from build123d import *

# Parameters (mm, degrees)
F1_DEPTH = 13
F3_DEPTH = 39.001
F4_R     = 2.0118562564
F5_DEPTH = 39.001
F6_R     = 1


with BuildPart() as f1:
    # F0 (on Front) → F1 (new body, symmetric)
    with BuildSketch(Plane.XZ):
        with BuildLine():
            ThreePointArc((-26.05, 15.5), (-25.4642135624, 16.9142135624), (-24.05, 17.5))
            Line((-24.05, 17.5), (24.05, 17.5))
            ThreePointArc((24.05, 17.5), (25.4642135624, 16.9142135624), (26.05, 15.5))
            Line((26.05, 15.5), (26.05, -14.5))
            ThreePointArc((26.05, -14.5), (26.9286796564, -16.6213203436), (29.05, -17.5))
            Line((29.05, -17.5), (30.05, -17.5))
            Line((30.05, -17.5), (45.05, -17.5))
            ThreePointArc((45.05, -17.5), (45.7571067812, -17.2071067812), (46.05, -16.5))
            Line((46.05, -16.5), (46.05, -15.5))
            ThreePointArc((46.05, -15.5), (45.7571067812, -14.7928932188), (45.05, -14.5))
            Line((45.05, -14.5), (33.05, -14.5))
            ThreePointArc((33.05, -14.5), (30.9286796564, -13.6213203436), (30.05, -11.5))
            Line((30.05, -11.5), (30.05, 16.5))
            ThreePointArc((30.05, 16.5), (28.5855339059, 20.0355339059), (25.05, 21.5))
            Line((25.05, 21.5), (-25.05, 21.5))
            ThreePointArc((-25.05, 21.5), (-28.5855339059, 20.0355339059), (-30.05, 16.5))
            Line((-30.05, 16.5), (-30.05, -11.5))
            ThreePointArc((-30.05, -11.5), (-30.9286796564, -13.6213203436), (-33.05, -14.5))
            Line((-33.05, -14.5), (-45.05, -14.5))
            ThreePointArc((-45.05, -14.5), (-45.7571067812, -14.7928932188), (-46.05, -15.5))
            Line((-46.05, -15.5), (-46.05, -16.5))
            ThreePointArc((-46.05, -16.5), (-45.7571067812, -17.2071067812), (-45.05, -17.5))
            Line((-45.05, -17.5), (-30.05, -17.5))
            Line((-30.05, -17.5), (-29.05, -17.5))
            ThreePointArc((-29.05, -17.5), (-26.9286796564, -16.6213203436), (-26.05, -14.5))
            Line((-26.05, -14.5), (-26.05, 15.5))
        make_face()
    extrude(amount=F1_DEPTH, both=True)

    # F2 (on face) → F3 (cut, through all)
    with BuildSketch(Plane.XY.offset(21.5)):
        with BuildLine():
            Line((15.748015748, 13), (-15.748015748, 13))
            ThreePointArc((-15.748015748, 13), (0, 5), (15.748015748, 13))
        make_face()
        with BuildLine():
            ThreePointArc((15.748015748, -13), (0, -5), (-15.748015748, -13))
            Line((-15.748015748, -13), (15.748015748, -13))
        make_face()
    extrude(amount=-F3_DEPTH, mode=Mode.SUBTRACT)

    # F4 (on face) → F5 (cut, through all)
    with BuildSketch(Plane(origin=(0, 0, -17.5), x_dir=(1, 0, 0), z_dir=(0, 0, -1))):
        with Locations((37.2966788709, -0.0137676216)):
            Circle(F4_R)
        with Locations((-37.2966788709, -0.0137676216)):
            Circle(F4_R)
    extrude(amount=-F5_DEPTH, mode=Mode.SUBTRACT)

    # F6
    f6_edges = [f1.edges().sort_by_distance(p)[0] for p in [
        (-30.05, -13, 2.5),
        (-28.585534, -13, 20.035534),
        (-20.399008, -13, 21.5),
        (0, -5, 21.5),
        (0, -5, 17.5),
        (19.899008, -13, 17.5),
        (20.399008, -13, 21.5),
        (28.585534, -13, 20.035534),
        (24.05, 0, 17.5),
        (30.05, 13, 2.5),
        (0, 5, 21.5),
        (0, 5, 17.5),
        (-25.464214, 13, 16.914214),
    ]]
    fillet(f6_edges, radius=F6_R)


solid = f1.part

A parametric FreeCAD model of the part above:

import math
import FreeCAD as App
import Part
import Sketcher

V = App.Vector


def edges_at(feature, points):
    """Names of the edges that pass closest to the given points."""
    edges = feature.Shape.Edges
    near = lambda p: min(range(len(edges)), key=lambda i: edges[i].distToShape(Part.Vertex(*p))[0])
    return sorted({f"Edge{near(p) + 1}" for p in points})

doc = App.newDocument("Part")
body = doc.addObject("PartDesign::Body", "Body")

# Sketch on XZ plane
sketch1 = doc.addObject("Sketcher::SketchObject", "Sketch")
body.addObject(sketch1)
sketch1.AttachmentSupport = (doc.XZ_Plane, [""])
sketch1.MapMode = "FlatFace"
sketch1.addGeometry(Part.ArcOfCircle(Part.Circle(V(-24.05, 15.5, 0), V(0, 0, 1), 2), math.radians(90), math.radians(180)), False)
sketch1.addGeometry(Part.LineSegment(V(-24.05, 17.5, 0), V(24.05, 17.5, 0)), False)
sketch1.addGeometry(Part.ArcOfCircle(Part.Circle(V(24.05, 15.5, 0), V(0, 0, 1), 2), math.radians(0), math.radians(90)), False)
sketch1.addGeometry(Part.LineSegment(V(26.05, 15.5, 0), V(26.05, -14.5, 0)), False)
sketch1.addGeometry(Part.ArcOfCircle(Part.Circle(V(29.05, -14.5, 0), V(0, 0, 1), 3), math.radians(180), math.radians(270)), False)
sketch1.addGeometry(Part.LineSegment(V(29.05, -17.5, 0), V(45.05, -17.5, 0)), False)
sketch1.addGeometry(Part.ArcOfCircle(Part.Circle(V(45.05, -16.5, 0), V(0, 0, 1), 1), math.radians(-90), math.radians(0)), False)
sketch1.addGeometry(Part.LineSegment(V(46.05, -16.5, 0), V(46.05, -15.5, 0)), False)
sketch1.addGeometry(Part.ArcOfCircle(Part.Circle(V(45.05, -15.5, 0), V(0, 0, 1), 1), math.radians(0), math.radians(90)), False)
sketch1.addGeometry(Part.LineSegment(V(45.05, -14.5, 0), V(33.05, -14.5, 0)), False)
sketch1.addGeometry(Part.ArcOfCircle(Part.Circle(V(33.05, -11.5, 0), V(0, 0, 1), 3), math.radians(180), math.radians(270)), False)
sketch1.addGeometry(Part.LineSegment(V(30.05, -11.5, 0), V(30.05, 16.5, 0)), False)
sketch1.addGeometry(Part.ArcOfCircle(Part.Circle(V(25.05, 16.5, 0), V(0, 0, 1), 5), math.radians(0), math.radians(90)), False)
sketch1.addGeometry(Part.LineSegment(V(25.05, 21.5, 0), V(-25.05, 21.5, 0)), False)
sketch1.addGeometry(Part.ArcOfCircle(Part.Circle(V(-25.05, 16.5, 0), V(0, 0, 1), 5), math.radians(90), math.radians(180)), False)
sketch1.addGeometry(Part.LineSegment(V(-30.05, 16.5, 0), V(-30.05, -11.5, 0)), False)
sketch1.addGeometry(Part.ArcOfCircle(Part.Circle(V(-33.05, -11.5, 0), V(0, 0, 1), 3), math.radians(-90), math.radians(0)), False)
sketch1.addGeometry(Part.LineSegment(V(-33.05, -14.5, 0), V(-45.05, -14.5, 0)), False)
sketch1.addGeometry(Part.ArcOfCircle(Part.Circle(V(-45.05, -15.5, 0), V(0, 0, 1), 1), math.radians(90), math.radians(180)), False)
sketch1.addGeometry(Part.LineSegment(V(-46.05, -15.5, 0), V(-46.05, -16.5, 0)), False)
sketch1.addGeometry(Part.ArcOfCircle(Part.Circle(V(-45.05, -16.5, 0), V(0, 0, 1), 1), math.radians(180), math.radians(270)), False)
sketch1.addGeometry(Part.LineSegment(V(-45.05, -17.5, 0), V(-29.05, -17.5, 0)), False)
sketch1.addGeometry(Part.ArcOfCircle(Part.Circle(V(-29.05, -14.5, 0), V(0, 0, 1), 3), math.radians(-90), math.radians(0)), False)
sketch1.addGeometry(Part.LineSegment(V(-26.05, -14.5, 0), V(-26.05, 15.5, 0)), False)
sketch1.addConstraint(Sketcher.Constraint("Tangent", 0, 1, 1, 1))
sketch1.addConstraint(Sketcher.Constraint("Tangent", 1, 2, 2, 2))
sketch1.addConstraint(Sketcher.Constraint("Tangent", 2, 1, 3, 1))
sketch1.addConstraint(Sketcher.Constraint("Tangent", 3, 2, 4, 1))
sketch1.addConstraint(Sketcher.Constraint("Tangent", 4, 2, 5, 1))
sketch1.addConstraint(Sketcher.Constraint("Tangent", 5, 2, 6, 1))
sketch1.addConstraint(Sketcher.Constraint("Tangent", 6, 2, 7, 1))
sketch1.addConstraint(Sketcher.Constraint("Tangent", 7, 2, 8, 1))
sketch1.addConstraint(Sketcher.Constraint("Tangent", 8, 2, 9, 1))
sketch1.addConstraint(Sketcher.Constraint("Tangent", 9, 2, 10, 2))
sketch1.addConstraint(Sketcher.Constraint("Tangent", 10, 1, 11, 1))
sketch1.addConstraint(Sketcher.Constraint("Tangent", 11, 2, 12, 1))
sketch1.addConstraint(Sketcher.Constraint("Tangent", 12, 2, 13, 1))
sketch1.addConstraint(Sketcher.Constraint("Tangent", 13, 2, 14, 1))
sketch1.addConstraint(Sketcher.Constraint("Tangent", 14, 2, 15, 1))
sketch1.addConstraint(Sketcher.Constraint("Tangent", 15, 2, 16, 2))
sketch1.addConstraint(Sketcher.Constraint("Tangent", 16, 1, 17, 1))
sketch1.addConstraint(Sketcher.Constraint("Tangent", 17, 2, 18, 1))
sketch1.addConstraint(Sketcher.Constraint("Tangent", 18, 2, 19, 1))
sketch1.addConstraint(Sketcher.Constraint("Tangent", 19, 2, 20, 1))
sketch1.addConstraint(Sketcher.Constraint("Tangent", 20, 2, 21, 1))
sketch1.addConstraint(Sketcher.Constraint("Tangent", 21, 2, 22, 1))
sketch1.addConstraint(Sketcher.Constraint("Tangent", 22, 2, 23, 1))
sketch1.addConstraint(Sketcher.Constraint("Tangent", 23, 2, 0, 2))
sketch1.addConstraint(Sketcher.Constraint("Horizontal", 1))
sketch1.addConstraint(Sketcher.Constraint("Vertical", 3))
sketch1.addConstraint(Sketcher.Constraint("Horizontal", 5))
sketch1.addConstraint(Sketcher.Constraint("Vertical", 7))
sketch1.addConstraint(Sketcher.Constraint("Horizontal", 9))
sketch1.addConstraint(Sketcher.Constraint("Vertical", 11))
sketch1.addConstraint(Sketcher.Constraint("Horizontal", 13))
sketch1.addConstraint(Sketcher.Constraint("Vertical", 15))
sketch1.addConstraint(Sketcher.Constraint("Horizontal", 17))
sketch1.addConstraint(Sketcher.Constraint("Vertical", 19))
sketch1.addConstraint(Sketcher.Constraint("Horizontal", 21))
sketch1.addConstraint(Sketcher.Constraint("Vertical", 23))
sketch1.addConstraint(Sketcher.Constraint("Equal", 0, 2))
sketch1.addConstraint(Sketcher.Constraint("Equal", 6, 8))
sketch1.addConstraint(Sketcher.Constraint("Equal", 4, 10))
sketch1.addConstraint(Sketcher.Constraint("Equal", 12, 14))
sketch1.addConstraint(Sketcher.Constraint("Equal", 10, 16))
sketch1.addConstraint(Sketcher.Constraint("Equal", 8, 18))
sketch1.addConstraint(Sketcher.Constraint("Equal", 18, 20))
sketch1.addConstraint(Sketcher.Constraint("Equal", 16, 22))
sketch1.addConstraint(Sketcher.Constraint("Symmetric", 10, 3, 16, 3, -2))
sketch1.addConstraint(Sketcher.Constraint("Symmetric", 6, 3, 20, 3, -2))
sketch1.addConstraint(Sketcher.Constraint("Horizontal", 3, 2, 8, 2))
sketch1.addConstraint(Sketcher.Constraint("Equal", 5, 21))
sketch1.addConstraint(Sketcher.Constraint("Radius", 0, 2.0))
sketch1.addConstraint(Sketcher.Constraint("Radius", 4, 3.0))
sketch1.addConstraint(Sketcher.Constraint("Radius", 6, 1.0))
sketch1.addConstraint(Sketcher.Constraint("Radius", 12, 5.0))
sketch1.addConstraint(Sketcher.Constraint("DistanceX", 5, 1, 5, 2, 16.0))
sketch1.addConstraint(Sketcher.Constraint("DistanceX", 9, 2, 9, 1, 12.0))
sketch1.addConstraint(Sketcher.Constraint("DistanceY", 3, 2, 3, 1, 30.0))
sketch1.addConstraint(Sketcher.Constraint("DistanceY", 11, 1, 11, 2, 28.0))
sketch1.addConstraint(Sketcher.Constraint("DistanceX", 1, 1, 1, 2, 48.1))
sketch1.addConstraint(Sketcher.Constraint("DistanceY", -1, 1, 0, 3, 15.5))
pad1 = doc.addObject("PartDesign::Pad", "Pad")
body.addObject(pad1)
pad1.Profile = sketch1
pad1.Length = 26
pad1.Midplane = True

# Sketch on XY plane
sketch2 = doc.addObject("Sketcher::SketchObject", "Sketch001")
body.addObject(sketch2)
sketch2.AttachmentSupport = (doc.XY_Plane, [""])
sketch2.MapMode = "FlatFace"
sketch2.AttachmentOffset = App.Placement(V(0, 0, 21.5), App.Rotation())
sketch2.addGeometry(Part.LineSegment(V(15.748016, 13, 0), V(-15.748016, 13, 0)), False)
sketch2.addGeometry(Part.ArcOfCircle(Part.Circle(V(0, 24.5, 0), V(0, 0, 1), 19.5), math.radians(-143.861185), math.radians(-36.138815)), False)
sketch2.addGeometry(Part.ArcOfCircle(Part.Circle(V(0, -24.5, 0), V(0, 0, 1), 19.5), math.radians(36.138815), math.radians(143.861185)), False)
sketch2.addGeometry(Part.LineSegment(V(-15.748016, -13, 0), V(15.748016, -13, 0)), False)
sketch2.addConstraint(Sketcher.Constraint("Coincident", 0, 1, 1, 2))
sketch2.addConstraint(Sketcher.Constraint("Coincident", 1, 1, 0, 2))
sketch2.addConstraint(Sketcher.Constraint("Coincident", 2, 1, 3, 2))
sketch2.addConstraint(Sketcher.Constraint("Coincident", 3, 1, 2, 2))
sketch2.addConstraint(Sketcher.Constraint("Horizontal", 0))
sketch2.addConstraint(Sketcher.Constraint("Horizontal", 3))
sketch2.addConstraint(Sketcher.Constraint("Equal", 1, 2))
sketch2.addConstraint(Sketcher.Constraint("Symmetric", 1, 3, 2, 3, -1, 1))
sketch2.addConstraint(Sketcher.Constraint("Symmetric", 0, 1, 2, 1, -1))
sketch2.addConstraint(Sketcher.Constraint("Radius", 1, 19.5))
sketch2.addConstraint(Sketcher.Constraint("DistanceY", -1, 1, 0, 1, 13.0))
sketch2.addConstraint(Sketcher.Constraint("DistanceY", 2, 3, 1, 3, 49.0))
pocket1 = doc.addObject("PartDesign::Pocket", "Pocket")
body.addObject(pocket1)
pocket1.Profile = sketch2
pocket1.Type = "ThroughAll"

# Sketch on XY plane
sketch3 = doc.addObject("Sketcher::SketchObject", "Sketch002")
body.addObject(sketch3)
sketch3.AttachmentSupport = (doc.XY_Plane, [""])
sketch3.MapMode = "FlatFace"
sketch3.AttachmentOffset = App.Placement(V(0, 0, -17.5), App.Rotation())
sketch3.addGeometry(Part.Circle(V(37.296679, 0.013768, 0), V(0, 0, 1), 2.011856), False)
sketch3.addGeometry(Part.Circle(V(-37.296679, 0.013768, 0), V(0, 0, 1), 2.011856), False)
sketch3.addConstraint(Sketcher.Constraint("Equal", 0, 1))
sketch3.addConstraint(Sketcher.Constraint("Symmetric", 0, 3, 1, 3, -2))
sketch3.addConstraint(Sketcher.Constraint("Diameter", 0, 4.023713))
sketch3.addConstraint(Sketcher.Constraint("DistanceX", -1, 1, 0, 3, 37.296679))
sketch3.addConstraint(Sketcher.Constraint("DistanceY", -1, 1, 0, 3, 0.013768))
pocket2 = doc.addObject("PartDesign::Pocket", "Pocket001")
body.addObject(pocket2)
pocket2.Profile = sketch3
pocket2.Type = "ThroughAll"
pocket2.Reversed = True
doc.recompute()

fillet = doc.addObject("PartDesign::Fillet", "Fillet")
body.addObject(fillet)
fillet.Base = (pocket2, edges_at(pocket2, [
    (-30.05, -13, 2.5),
    (-28.586, -13, 20.036),
    (-20.399, -13, 21.5),
    (0, -5, 21.5),
    (0, -5, 17.5),
    (19.899, -13, 17.5),
    (20.399, -13, 21.5),
    (28.586, -13, 20.036),
    (24.05, 0, 17.5),
    (30.05, 13, 2.5),
    (0, 5, 21.5),
    (0, 5, 17.5),
    (-25.464, 13, 16.914),
]))
fillet.Radius = 1

doc.recompute()
